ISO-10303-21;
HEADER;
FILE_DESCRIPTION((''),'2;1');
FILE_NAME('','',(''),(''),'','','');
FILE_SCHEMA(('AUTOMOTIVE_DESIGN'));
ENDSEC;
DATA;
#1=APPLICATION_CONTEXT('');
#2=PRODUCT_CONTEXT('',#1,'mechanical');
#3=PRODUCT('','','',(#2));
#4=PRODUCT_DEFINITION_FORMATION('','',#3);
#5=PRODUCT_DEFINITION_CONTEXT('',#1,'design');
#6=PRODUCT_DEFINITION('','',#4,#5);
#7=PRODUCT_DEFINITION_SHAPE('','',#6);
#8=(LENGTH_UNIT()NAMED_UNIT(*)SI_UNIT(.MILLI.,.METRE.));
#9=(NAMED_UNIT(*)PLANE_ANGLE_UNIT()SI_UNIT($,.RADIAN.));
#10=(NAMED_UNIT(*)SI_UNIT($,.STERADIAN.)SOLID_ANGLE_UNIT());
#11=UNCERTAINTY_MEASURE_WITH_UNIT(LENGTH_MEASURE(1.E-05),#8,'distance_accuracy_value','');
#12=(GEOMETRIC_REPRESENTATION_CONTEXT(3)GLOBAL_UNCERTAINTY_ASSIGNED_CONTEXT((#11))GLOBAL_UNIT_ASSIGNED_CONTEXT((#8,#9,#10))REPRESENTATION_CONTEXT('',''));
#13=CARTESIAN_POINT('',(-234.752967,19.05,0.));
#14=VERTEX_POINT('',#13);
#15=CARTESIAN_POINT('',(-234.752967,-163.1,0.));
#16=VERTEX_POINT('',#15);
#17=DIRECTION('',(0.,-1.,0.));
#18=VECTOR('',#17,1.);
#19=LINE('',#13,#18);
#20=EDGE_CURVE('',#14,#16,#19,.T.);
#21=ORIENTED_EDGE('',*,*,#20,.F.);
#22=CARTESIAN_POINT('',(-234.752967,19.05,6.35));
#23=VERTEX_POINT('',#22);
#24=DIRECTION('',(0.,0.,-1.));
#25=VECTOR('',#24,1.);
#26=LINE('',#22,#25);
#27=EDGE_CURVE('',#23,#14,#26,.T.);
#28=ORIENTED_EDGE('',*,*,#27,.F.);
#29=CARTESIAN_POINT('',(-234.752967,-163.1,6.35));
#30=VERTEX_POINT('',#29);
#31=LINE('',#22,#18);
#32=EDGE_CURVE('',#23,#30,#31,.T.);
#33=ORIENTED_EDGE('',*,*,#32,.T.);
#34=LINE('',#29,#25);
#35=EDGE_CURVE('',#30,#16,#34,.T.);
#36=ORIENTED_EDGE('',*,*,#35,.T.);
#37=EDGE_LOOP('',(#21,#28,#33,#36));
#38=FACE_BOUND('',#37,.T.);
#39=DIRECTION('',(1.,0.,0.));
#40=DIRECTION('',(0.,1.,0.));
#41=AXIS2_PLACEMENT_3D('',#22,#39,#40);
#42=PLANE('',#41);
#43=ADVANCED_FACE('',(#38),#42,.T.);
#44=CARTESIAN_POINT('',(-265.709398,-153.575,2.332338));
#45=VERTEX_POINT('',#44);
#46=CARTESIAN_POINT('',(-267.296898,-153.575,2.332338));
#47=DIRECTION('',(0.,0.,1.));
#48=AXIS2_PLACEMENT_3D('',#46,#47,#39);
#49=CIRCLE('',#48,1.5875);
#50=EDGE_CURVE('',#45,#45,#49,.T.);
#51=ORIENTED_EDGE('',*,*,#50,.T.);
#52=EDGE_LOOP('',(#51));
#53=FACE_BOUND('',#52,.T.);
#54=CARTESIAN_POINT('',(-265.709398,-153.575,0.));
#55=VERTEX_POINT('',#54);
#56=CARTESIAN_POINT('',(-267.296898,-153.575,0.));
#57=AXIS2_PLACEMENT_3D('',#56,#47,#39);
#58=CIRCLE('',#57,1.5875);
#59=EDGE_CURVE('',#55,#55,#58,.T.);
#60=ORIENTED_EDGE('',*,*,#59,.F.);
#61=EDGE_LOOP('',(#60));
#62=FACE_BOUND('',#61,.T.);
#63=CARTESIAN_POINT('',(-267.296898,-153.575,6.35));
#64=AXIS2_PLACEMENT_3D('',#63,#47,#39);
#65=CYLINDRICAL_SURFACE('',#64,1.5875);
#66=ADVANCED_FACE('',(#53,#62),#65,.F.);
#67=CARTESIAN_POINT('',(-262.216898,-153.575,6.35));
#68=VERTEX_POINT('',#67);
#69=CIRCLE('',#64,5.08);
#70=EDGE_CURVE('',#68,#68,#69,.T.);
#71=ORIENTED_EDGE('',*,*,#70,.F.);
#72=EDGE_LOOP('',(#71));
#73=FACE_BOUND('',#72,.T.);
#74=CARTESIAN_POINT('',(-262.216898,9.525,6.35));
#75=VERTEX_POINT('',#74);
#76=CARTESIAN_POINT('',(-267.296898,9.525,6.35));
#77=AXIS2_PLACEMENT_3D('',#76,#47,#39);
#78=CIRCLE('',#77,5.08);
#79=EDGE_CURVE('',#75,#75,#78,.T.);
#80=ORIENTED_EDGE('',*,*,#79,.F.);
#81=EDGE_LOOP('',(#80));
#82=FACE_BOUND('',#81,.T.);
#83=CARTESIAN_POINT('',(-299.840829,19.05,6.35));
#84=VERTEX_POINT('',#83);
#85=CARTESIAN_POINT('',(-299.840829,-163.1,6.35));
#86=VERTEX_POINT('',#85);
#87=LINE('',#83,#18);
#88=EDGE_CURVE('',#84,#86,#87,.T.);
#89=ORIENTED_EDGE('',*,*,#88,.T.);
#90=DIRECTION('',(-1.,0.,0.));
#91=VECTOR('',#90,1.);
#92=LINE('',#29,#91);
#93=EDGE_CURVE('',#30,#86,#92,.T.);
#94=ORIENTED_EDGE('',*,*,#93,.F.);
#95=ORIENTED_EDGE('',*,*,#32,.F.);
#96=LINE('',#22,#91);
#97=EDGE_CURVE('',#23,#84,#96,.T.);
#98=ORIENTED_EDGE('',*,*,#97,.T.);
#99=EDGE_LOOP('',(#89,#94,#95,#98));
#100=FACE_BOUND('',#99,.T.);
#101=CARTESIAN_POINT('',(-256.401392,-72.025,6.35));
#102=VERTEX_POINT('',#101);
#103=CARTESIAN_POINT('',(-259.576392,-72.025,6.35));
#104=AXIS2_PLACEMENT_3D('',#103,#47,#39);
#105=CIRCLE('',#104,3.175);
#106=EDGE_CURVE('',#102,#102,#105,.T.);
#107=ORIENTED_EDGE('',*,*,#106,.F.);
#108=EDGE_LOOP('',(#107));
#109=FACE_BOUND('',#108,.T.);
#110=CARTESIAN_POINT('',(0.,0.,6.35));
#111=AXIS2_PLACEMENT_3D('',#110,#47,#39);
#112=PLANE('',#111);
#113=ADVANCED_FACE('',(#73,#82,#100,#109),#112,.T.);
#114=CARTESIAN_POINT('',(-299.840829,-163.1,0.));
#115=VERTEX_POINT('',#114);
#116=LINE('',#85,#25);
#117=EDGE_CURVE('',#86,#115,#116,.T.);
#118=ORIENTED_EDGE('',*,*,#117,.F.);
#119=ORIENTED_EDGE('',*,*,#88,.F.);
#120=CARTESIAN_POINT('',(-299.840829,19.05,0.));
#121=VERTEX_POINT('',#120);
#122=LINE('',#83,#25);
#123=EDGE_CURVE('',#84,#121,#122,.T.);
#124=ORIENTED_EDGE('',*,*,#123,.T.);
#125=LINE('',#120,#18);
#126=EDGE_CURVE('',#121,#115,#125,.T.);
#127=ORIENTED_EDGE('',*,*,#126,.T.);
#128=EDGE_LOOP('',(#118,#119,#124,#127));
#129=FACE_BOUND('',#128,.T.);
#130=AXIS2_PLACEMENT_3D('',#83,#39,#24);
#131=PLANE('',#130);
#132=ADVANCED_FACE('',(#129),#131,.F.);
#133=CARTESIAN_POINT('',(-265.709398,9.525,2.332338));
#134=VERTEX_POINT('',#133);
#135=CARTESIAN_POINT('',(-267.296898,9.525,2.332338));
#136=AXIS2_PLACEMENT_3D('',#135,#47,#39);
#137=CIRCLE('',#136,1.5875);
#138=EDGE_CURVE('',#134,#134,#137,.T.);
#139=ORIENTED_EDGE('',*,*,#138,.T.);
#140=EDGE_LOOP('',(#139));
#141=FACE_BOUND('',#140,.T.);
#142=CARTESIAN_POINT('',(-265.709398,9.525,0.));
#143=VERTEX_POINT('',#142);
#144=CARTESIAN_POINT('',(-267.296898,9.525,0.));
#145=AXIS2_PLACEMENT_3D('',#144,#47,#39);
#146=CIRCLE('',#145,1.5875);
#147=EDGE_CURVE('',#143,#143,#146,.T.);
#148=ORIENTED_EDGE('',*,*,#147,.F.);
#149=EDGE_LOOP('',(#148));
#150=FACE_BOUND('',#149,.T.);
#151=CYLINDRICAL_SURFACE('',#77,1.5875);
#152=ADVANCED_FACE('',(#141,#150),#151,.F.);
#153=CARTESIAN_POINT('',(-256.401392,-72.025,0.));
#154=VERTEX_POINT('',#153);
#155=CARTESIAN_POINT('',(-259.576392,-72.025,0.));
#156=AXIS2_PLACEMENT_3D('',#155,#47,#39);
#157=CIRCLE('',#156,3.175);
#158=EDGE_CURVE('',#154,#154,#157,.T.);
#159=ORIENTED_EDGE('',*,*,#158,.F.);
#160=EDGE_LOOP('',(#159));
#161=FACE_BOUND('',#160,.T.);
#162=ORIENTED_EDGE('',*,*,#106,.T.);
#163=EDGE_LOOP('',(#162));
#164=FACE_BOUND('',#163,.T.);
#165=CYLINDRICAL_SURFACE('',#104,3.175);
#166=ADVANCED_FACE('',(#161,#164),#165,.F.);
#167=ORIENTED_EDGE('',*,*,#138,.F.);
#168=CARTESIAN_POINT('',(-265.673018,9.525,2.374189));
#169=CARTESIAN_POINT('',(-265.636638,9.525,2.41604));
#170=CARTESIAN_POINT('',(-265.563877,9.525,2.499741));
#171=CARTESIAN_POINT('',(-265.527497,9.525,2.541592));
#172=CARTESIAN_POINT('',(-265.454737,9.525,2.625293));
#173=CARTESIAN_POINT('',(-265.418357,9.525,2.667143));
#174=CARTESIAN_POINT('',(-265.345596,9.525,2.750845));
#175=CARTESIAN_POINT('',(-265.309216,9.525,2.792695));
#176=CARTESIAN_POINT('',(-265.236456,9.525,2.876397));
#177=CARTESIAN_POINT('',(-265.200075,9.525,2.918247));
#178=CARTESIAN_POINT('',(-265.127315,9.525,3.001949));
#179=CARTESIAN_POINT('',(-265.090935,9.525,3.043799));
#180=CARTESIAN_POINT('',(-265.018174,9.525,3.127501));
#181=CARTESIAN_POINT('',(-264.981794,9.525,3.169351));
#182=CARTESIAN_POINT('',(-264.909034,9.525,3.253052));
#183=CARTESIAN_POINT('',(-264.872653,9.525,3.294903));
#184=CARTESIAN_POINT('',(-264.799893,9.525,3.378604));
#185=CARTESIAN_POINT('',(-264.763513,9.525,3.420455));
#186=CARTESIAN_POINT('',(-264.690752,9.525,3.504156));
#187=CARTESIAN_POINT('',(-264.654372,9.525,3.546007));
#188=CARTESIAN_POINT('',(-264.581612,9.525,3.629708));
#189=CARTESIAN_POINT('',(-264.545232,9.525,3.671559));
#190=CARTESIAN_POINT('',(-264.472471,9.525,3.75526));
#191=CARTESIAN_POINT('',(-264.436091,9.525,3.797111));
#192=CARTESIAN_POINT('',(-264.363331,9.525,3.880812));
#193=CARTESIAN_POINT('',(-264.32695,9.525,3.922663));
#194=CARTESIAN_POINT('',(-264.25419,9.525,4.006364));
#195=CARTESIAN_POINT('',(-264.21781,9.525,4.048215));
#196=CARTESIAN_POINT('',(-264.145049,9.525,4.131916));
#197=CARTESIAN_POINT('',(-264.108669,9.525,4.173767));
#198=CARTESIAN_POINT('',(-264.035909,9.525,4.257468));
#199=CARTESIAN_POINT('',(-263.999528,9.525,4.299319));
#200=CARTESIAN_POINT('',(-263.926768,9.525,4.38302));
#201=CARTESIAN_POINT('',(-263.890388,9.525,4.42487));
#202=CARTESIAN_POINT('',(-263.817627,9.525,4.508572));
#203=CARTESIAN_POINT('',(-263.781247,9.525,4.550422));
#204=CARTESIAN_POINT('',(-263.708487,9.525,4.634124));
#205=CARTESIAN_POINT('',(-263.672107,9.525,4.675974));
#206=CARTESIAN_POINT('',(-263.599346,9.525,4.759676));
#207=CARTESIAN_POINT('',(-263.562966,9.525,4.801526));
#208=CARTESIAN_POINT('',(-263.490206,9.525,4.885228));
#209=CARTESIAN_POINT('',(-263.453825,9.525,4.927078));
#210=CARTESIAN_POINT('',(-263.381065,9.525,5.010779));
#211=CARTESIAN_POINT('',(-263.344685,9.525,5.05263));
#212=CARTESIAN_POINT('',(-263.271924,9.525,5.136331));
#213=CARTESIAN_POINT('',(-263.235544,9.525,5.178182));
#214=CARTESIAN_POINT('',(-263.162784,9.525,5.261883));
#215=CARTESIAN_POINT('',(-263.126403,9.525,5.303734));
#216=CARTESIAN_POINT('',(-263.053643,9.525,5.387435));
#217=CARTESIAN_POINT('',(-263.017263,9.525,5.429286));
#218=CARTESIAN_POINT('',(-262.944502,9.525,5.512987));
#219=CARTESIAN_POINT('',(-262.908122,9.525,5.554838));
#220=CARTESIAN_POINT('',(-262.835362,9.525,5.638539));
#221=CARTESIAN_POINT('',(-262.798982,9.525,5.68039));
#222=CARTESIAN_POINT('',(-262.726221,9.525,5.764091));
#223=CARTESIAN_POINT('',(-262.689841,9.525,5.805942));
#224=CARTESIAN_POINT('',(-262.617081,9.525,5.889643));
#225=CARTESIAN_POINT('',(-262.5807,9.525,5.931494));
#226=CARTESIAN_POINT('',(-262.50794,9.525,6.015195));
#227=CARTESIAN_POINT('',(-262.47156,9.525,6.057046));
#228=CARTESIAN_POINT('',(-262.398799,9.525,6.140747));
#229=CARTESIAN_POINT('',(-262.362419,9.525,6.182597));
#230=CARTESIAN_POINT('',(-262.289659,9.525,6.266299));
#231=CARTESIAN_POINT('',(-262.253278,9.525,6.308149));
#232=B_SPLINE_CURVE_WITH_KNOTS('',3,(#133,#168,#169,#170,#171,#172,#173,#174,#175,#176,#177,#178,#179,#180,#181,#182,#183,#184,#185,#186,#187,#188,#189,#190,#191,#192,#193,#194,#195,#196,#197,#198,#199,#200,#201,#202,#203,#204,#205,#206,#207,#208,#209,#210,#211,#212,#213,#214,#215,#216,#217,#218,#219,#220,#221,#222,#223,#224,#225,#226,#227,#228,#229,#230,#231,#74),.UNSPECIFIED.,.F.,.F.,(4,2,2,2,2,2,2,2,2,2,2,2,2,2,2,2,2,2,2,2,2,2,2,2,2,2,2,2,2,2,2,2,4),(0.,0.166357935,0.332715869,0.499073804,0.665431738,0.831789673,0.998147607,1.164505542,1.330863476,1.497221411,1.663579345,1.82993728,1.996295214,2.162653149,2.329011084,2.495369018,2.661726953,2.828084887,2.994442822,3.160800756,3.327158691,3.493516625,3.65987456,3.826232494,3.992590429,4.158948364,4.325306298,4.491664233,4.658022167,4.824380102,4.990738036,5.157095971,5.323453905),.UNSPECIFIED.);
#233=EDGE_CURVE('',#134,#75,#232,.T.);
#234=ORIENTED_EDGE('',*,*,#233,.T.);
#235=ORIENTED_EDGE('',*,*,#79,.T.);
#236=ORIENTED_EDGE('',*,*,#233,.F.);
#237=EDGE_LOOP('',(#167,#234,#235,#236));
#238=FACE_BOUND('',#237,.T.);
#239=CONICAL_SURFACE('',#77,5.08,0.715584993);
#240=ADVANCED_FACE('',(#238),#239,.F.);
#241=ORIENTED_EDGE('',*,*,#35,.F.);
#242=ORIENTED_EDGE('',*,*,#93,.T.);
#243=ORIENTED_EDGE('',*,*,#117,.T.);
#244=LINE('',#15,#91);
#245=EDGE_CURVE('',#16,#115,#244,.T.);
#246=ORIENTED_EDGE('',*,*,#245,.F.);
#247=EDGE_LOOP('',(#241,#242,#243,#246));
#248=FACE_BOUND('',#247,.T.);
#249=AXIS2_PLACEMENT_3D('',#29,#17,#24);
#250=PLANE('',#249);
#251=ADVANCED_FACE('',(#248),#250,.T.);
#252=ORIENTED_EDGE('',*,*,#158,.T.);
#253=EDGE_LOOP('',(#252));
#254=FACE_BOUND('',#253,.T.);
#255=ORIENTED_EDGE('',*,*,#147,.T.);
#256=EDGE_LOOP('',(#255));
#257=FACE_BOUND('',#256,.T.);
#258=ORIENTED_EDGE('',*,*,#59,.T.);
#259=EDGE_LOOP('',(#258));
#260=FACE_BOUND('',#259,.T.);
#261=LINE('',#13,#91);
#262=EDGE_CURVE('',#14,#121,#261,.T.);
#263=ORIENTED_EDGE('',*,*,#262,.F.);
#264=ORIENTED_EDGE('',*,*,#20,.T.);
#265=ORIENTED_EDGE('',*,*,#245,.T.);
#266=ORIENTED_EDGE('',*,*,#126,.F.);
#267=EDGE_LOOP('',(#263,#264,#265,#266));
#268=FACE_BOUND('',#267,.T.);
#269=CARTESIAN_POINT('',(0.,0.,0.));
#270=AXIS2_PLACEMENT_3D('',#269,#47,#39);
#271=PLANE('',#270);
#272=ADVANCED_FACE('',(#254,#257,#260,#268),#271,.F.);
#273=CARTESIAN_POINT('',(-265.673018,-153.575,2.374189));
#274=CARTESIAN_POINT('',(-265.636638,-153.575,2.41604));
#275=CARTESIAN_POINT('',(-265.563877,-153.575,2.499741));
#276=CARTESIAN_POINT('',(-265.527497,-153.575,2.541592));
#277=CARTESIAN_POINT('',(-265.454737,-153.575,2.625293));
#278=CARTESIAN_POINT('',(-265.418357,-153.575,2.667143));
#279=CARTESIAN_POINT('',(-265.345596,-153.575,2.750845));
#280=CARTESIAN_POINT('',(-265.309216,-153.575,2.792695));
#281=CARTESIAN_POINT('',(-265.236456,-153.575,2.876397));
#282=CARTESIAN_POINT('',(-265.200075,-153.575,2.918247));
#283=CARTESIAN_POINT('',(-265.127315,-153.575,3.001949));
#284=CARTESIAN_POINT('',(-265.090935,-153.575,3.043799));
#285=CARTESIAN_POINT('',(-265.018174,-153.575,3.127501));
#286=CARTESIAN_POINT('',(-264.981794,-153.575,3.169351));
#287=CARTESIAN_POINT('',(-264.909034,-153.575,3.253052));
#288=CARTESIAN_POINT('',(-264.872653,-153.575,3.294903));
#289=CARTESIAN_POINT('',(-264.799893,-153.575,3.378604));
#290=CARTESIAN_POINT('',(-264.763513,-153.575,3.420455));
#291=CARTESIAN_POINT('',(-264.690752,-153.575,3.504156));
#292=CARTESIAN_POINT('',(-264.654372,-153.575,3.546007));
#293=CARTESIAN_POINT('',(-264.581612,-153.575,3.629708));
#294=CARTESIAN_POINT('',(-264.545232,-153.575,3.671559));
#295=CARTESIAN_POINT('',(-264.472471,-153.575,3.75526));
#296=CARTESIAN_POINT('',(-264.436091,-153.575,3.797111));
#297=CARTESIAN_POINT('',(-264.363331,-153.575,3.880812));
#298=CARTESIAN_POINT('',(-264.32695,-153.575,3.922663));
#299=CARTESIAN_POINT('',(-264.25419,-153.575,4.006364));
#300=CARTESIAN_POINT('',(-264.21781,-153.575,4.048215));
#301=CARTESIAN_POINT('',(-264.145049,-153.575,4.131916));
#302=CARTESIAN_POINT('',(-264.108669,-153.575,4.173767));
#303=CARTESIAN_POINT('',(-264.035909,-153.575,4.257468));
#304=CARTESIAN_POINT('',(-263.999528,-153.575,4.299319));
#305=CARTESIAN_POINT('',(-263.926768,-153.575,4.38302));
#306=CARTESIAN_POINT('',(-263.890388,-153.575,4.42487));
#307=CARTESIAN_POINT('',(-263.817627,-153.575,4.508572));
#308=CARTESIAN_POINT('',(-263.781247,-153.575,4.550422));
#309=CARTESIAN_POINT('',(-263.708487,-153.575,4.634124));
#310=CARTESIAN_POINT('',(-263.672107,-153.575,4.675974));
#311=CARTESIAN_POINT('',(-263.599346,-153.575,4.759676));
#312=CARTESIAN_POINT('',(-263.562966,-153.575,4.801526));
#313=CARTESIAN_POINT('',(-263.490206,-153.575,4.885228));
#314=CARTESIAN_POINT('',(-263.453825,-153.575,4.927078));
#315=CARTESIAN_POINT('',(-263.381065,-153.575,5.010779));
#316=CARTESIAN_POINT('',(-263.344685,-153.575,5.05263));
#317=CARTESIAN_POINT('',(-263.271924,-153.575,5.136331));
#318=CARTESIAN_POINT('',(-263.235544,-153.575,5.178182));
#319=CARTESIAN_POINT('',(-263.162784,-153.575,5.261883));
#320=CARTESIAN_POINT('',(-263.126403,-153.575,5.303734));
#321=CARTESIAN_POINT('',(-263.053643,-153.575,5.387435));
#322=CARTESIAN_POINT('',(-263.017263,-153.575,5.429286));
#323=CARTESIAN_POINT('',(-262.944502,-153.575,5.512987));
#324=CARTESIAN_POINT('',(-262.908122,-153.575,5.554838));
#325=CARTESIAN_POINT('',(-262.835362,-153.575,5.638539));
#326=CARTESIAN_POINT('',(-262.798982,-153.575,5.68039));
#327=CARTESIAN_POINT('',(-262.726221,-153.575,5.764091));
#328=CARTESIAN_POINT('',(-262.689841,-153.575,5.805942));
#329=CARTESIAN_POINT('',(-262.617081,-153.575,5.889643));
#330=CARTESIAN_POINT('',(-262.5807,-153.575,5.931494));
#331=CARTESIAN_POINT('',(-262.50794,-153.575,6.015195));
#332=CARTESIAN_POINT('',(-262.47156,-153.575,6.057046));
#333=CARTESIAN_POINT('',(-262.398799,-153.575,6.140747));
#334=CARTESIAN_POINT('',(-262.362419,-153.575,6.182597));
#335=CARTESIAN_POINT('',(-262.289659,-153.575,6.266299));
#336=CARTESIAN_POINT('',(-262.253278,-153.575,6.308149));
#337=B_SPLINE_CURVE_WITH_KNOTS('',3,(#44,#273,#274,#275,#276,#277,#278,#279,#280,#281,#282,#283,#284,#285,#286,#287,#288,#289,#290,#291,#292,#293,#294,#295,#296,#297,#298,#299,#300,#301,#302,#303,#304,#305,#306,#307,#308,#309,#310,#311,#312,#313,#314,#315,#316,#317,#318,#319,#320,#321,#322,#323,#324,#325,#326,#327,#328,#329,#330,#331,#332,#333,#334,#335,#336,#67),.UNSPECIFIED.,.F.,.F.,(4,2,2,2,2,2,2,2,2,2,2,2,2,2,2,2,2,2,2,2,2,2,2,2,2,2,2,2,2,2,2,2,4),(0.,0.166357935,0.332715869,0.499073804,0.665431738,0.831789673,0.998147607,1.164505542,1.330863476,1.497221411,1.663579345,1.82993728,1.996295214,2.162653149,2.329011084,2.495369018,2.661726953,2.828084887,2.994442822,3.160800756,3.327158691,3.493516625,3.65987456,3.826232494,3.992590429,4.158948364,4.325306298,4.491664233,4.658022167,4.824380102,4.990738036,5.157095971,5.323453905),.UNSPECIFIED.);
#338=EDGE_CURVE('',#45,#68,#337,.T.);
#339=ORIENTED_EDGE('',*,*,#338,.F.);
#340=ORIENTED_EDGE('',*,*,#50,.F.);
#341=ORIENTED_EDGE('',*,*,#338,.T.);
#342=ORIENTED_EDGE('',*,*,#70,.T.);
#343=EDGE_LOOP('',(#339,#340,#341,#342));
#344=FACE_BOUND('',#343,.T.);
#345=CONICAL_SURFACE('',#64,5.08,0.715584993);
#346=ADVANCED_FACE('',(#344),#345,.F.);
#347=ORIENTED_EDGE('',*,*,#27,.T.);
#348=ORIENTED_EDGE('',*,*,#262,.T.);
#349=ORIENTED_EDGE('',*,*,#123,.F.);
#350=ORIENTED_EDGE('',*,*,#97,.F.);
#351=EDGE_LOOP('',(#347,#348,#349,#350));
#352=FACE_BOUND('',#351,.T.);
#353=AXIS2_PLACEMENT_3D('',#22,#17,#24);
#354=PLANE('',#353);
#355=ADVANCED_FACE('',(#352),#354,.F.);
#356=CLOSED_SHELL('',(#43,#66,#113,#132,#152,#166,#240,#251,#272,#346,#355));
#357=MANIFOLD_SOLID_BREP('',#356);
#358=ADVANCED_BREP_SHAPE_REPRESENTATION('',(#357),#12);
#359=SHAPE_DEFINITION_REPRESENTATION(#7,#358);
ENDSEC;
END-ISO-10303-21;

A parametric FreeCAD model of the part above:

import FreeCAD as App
import Part
import Sketcher
Q = App.Units.Quantity


def add_polygon(sketch, points):
    """Adds a closed chain of lines whose ends are joined by coincident constraints."""
    first, n = sketch.GeometryCount, len(points)
    for a, b in zip(points, points[1:] + points[:1]):
        sketch.addGeometry(Part.LineSegment(App.Vector(*a, 0), App.Vector(*b, 0)), False)
    for i in range(n):
        sketch.addConstraint(Sketcher.Constraint("Coincident", first + i, 2, first + (i + 1) % n, 1))

doc = App.newDocument("Part")
params = doc.addObject("Spreadsheet::Sheet", "Params")
for row, (alias, value) in enumerate([
    ("pad1_length", "0.25 in"),
    ("sketch2_diameter", "0.25 in"),
    ("hole_diameter", "0.25 in"),
    ("sketch3_diameter", "0.125 in"),
    ("hole2_diameter", "0.125 in"),
    ("hole2_depth", "1.25 in"),
    ("hole2_csink_diameter", "0.4 in"),
], start=1):
    params.set(f"A{row}", alias)
    params.set(f"B{row}", "=" + value)
    params.setAlias(f"B{row}", alias)

body = doc.addObject("PartDesign::Body", "Body")

# Sketch on XY plane
sketch1 = body.newObject("Sketcher::SketchObject", "Sketch")
sketch1.AttachmentSupport = (doc.getObject("XY_Plane"), [""])
sketch1.MapMode = "FlatFace"
add_polygon(sketch1, [(-300, 19), (-300, -163), (-235, -163), (-235, 19)])  # lines 0-3
sketch1.addConstraint([
    Sketcher.Constraint("Vertical", 0),
    Sketcher.Constraint("Horizontal", 1),
    Sketcher.Constraint("Vertical", 2),
    Sketcher.Constraint("Horizontal", 3),
    Sketcher.Constraint("DistanceY", -1, 1, 2, 2, Q("0.75 in")),
    Sketcher.Constraint("DistanceY", 0, 2, 0, 1, Q("182.15 mm")),
    Sketcher.Constraint("DistanceX", 1, 1, 1, 2, Q("65.087862 mm")),
    Sketcher.Constraint("DistanceX", 0, 2, -1, 1, Q("299.840829 mm")),
])
pad1 = body.newObject("PartDesign::Pad", "Pad")
pad1.Profile = sketch1
pad1.setExpression("Length", "Params.pad1_length")

# Sketch on XY plane
sketch2 = body.newObject("Sketcher::SketchObject", "Sketch001")
sketch2.AttachmentSupport = (doc.getObject("XY_Plane"), [""])
sketch2.MapMode = "FlatFace"
sketch2.AttachmentOffset = App.Placement(App.Vector(0, 0, 0.25 * 25.4), App.Rotation())
sketch2.addGeometry(Part.Circle(App.Vector(-259.6, -72, 0), App.Vector(0, 0, 1), 3.2), False)
sketch2.addConstraint([
    Sketcher.Constraint("Diameter", 0, Q("0.25 in")),
    Sketcher.Constraint("DistanceY", 0, 3, -1, 1, Q("72.025 mm")),
    Sketcher.Constraint("DistanceX", 0, 3, -1, 1, Q("259.576392 mm")),
])
sketch2.setExpression("Constraints[0]", "Params.sketch2_diameter")
doc.recompute()
hole = body.newObject("PartDesign::Hole", "Hole")
hole.Profile = sketch2
hole.ThreadType = "None"
hole.setExpression("Diameter", "Params.hole_diameter")
hole.DepthType = "ThroughAll"

# Sketch on XY plane
sketch3 = body.newObject("Sketcher::SketchObject", "Sketch002")
sketch3.AttachmentSupport = (doc.getObject("XY_Plane"), [""])
sketch3.MapMode = "FlatFace"
sketch3.AttachmentOffset = App.Placement(App.Vector(0, 0, 0.25 * 25.4), App.Rotation())
sketch3.addGeometry([
    Part.Circle(App.Vector(-267.3, 9.5, 0), App.Vector(0, 0, 1), 1.6),
    Part.Circle(App.Vector(-267.3, -153.6, 0), App.Vector(0, 0, 1), 1.6),
], False)
sketch3.addConstraint([
    Sketcher.Constraint("Equal", 0, 1),
    Sketcher.Constraint("Vertical", 0, 3, 1, 3),
    Sketcher.Constraint("Diameter", 0, Q("0.125 in")),
    Sketcher.Constraint("DistanceY", -1, 1, 0, 3, Q("0.375 in")),
    Sketcher.Constraint("DistanceX", 0, 3, -1, 1, Q("10.5234999 in")),
    Sketcher.Constraint("DistanceY", 1, 3, -1, 1, Q("153.575 mm")),
])
sketch3.setExpression("Constraints[2]", "Params.sketch3_diameter")
doc.recompute()
hole2 = body.newObject("PartDesign::Hole", "Hole001")
hole2.Profile = sketch3
hole2.ThreadType = "None"
hole2.setExpression("Diameter", "Params.hole2_diameter")
hole2.DepthType = "Dimension"
hole2.setExpression("Depth", "Params.hole2_depth")
hole2.DrillPoint = "Angled"
hole2.DrillPointAngle = 118
hole2.HoleCutType = "Countersink"
hole2.setExpression("HoleCutDiameter", "Params.hole2_csink_diameter")
hole2.HoleCutCountersinkAngle = 82

doc.recompute()
